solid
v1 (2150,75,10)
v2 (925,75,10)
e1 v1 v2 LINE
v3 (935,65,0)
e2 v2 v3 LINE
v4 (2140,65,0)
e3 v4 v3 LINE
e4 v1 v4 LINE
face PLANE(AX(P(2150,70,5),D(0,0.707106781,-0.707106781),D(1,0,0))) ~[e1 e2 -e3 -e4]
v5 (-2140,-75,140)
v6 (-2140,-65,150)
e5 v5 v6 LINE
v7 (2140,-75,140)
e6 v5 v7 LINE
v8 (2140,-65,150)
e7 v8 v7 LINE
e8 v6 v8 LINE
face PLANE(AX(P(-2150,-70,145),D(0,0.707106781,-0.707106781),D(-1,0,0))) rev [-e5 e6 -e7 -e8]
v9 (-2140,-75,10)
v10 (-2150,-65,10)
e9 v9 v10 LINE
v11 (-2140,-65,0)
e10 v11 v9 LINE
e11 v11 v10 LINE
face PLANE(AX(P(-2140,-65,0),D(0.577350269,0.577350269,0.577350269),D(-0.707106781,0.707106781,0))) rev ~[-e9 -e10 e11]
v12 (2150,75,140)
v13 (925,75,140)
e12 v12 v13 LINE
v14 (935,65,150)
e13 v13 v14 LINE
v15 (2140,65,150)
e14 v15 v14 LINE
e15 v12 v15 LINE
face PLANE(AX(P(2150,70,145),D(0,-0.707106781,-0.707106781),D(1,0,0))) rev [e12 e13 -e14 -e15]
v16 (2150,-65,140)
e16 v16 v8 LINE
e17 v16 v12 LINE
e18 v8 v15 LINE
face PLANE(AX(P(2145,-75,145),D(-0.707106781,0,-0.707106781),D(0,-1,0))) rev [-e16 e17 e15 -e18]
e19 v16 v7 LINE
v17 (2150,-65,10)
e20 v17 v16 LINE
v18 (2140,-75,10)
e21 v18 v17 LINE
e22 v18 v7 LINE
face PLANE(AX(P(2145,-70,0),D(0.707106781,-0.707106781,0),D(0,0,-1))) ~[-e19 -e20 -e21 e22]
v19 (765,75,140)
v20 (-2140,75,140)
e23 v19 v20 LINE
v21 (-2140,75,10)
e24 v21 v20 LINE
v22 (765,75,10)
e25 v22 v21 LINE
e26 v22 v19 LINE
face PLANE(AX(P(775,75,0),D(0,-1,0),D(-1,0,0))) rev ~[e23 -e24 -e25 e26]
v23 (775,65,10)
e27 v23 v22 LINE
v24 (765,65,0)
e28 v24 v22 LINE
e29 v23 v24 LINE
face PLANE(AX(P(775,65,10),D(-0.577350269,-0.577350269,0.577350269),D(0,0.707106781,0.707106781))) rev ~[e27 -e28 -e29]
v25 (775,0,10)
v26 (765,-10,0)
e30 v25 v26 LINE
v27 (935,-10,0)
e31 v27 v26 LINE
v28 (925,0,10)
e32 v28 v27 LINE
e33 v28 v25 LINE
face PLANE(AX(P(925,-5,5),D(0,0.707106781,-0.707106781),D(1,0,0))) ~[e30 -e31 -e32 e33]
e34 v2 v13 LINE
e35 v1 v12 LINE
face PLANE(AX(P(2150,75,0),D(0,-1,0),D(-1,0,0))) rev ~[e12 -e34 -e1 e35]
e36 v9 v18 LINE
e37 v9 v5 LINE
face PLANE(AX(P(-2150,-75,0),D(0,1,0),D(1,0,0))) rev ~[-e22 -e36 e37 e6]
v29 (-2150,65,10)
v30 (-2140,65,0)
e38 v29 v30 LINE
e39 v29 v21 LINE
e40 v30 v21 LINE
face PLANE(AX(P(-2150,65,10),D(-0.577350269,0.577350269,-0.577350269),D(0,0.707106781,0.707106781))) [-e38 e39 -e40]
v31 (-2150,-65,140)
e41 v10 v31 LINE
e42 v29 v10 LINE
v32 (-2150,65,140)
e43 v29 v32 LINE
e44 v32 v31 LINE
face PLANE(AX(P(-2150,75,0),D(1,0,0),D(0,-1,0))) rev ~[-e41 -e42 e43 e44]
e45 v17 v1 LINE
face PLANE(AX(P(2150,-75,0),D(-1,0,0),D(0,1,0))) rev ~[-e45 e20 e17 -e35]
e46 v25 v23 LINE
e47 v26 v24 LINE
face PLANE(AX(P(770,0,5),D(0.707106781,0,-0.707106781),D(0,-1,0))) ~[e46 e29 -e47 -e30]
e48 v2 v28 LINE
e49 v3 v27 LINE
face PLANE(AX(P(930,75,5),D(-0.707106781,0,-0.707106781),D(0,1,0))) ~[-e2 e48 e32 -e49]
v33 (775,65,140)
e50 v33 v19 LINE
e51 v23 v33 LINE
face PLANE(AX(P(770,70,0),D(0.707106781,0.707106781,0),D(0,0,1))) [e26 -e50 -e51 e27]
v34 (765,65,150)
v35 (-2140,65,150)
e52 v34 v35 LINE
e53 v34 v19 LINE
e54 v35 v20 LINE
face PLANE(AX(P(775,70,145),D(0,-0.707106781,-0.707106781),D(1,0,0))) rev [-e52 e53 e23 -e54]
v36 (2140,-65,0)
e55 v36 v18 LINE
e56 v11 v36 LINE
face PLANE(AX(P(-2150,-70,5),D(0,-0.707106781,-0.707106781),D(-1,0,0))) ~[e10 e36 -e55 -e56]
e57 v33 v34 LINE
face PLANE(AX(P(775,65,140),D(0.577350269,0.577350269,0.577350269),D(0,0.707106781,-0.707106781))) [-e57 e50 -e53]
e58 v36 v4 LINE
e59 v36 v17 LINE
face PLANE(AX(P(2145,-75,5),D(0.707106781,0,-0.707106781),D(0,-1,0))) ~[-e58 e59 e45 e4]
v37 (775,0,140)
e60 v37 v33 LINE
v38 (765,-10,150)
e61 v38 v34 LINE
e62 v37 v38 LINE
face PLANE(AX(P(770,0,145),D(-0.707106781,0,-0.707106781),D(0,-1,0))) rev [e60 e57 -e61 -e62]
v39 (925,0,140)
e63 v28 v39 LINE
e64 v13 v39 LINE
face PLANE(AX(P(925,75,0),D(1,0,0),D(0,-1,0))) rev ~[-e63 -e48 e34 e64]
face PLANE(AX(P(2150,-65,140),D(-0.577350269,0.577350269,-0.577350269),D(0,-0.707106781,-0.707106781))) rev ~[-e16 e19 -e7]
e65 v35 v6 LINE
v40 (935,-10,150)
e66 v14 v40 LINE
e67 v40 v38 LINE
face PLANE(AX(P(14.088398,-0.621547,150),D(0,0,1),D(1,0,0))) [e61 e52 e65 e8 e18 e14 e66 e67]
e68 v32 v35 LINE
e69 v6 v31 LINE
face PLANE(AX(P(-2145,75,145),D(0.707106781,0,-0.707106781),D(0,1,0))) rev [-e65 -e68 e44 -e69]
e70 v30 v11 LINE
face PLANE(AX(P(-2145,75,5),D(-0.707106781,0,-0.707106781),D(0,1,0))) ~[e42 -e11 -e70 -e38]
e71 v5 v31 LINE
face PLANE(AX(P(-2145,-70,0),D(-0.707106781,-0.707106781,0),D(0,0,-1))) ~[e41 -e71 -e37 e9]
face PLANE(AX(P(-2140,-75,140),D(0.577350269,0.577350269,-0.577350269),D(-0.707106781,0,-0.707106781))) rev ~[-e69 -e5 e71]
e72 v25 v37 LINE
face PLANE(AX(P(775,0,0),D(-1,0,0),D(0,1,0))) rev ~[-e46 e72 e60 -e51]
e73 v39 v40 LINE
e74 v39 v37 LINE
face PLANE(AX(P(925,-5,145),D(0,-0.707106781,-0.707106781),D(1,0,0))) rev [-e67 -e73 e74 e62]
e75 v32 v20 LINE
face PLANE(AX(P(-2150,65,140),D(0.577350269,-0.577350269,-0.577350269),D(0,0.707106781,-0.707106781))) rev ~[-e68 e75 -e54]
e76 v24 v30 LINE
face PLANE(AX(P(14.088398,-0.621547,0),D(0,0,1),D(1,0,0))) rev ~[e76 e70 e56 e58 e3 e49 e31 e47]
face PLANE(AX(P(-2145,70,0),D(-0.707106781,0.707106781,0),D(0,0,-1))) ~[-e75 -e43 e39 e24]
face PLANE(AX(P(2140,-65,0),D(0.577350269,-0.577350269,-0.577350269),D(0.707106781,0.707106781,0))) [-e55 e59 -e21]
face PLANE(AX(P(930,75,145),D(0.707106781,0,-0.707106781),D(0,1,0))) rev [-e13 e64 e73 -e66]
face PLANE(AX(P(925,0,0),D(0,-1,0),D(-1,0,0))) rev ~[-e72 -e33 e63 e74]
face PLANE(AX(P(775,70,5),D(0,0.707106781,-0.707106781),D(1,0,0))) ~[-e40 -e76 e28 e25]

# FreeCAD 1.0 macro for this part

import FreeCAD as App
import Part
import Sketcher

V = App.Vector


def edges_at(feature, points):
    """Names of the edges that pass closest to the given points."""
    edges = feature.Shape.Edges
    near = lambda p: min(range(len(edges)), key=lambda i: edges[i].distToShape(Part.Vertex(*p))[0])
    return sorted({f"Edge{near(p) + 1}" for p in points})

doc = App.newDocument("Part")
body = doc.addObject("PartDesign::Body", "Body")

# Sketch on XY plane
sketch1 = body.newObject("Sketcher::SketchObject", "Sketch")
sketch1.AttachmentSupport = (doc.getObject("XY_Plane"), [""])
sketch1.MapMode = "FlatFace"
sketch1.addGeometry(Part.LineSegment(V(775, 75, 0), V(-2150, 75, 0)), False)
sketch1.addGeometry(Part.LineSegment(V(-2150, 75, 0), V(-2150, -75, 0)), False)
sketch1.addGeometry(Part.LineSegment(V(-2150, -75, 0), V(2150, -75, 0)), False)
sketch1.addGeometry(Part.LineSegment(V(2150, -75, 0), V(2150, 75, 0)), False)
sketch1.addGeometry(Part.LineSegment(V(2150, 75, 0), V(925, 75, 0)), False)
sketch1.addGeometry(Part.LineSegment(V(925, 75, 0), V(925, 0, 0)), False)
sketch1.addGeometry(Part.LineSegment(V(925, 0, 0), V(775, 0, 0)), False)
sketch1.addGeometry(Part.LineSegment(V(775, 0, 0), V(775, 75, 0)), False)
sketch1.addConstraint(Sketcher.Constraint("Coincident", 0, 2, 1, 1))
sketch1.addConstraint(Sketcher.Constraint("Coincident", 1, 2, 2, 1))
sketch1.addConstraint(Sketcher.Constraint("Coincident", 2, 2, 3, 1))
sketch1.addConstraint(Sketcher.Constraint("Coincident", 3, 2, 4, 1))
sketch1.addConstraint(Sketcher.Constraint("Coincident", 4, 2, 5, 1))
sketch1.addConstraint(Sketcher.Constraint("Coincident", 5, 2, 6, 1))
sketch1.addConstraint(Sketcher.Constraint("Coincident", 6, 2, 7, 1))
sketch1.addConstraint(Sketcher.Constraint("Coincident", 7, 2, 0, 1))
sketch1.addConstraint(Sketcher.Constraint("Horizontal", 0))
sketch1.addConstraint(Sketcher.Constraint("Vertical", 1))
sketch1.addConstraint(Sketcher.Constraint("Horizontal", 2))
sketch1.addConstraint(Sketcher.Constraint("Vertical", 3))
sketch1.addConstraint(Sketcher.Constraint("Horizontal", 4))
sketch1.addConstraint(Sketcher.Constraint("Vertical", 5))
sketch1.addConstraint(Sketcher.Constraint("Horizontal", 6))
sketch1.addConstraint(Sketcher.Constraint("Vertical", 7))
sketch1.addConstraint(Sketcher.Constraint("Symmetric", 0, 2, 2, 2, -1, 1))
sketch1.addConstraint(Sketcher.Constraint("PointOnObject", 5, 2, -1))
sketch1.addConstraint(Sketcher.Constraint("Horizontal", 0, 2, 3, 2))
sketch1.addConstraint(Sketcher.Constraint("Equal", 6, 1))
sketch1.addConstraint(Sketcher.Constraint("DistanceX", 0, 2, 0, 1, 2925.0))
sketch1.addConstraint(Sketcher.Constraint("DistanceX", 2, 1, 2, 2, 4300.0))
sketch1.addConstraint(Sketcher.Constraint("DistanceX", 4, 2, 4, 1, 1225.0))
pad1 = body.newObject("PartDesign::Pad", "Pad")
pad1.Profile = sketch1
pad1.Length = 150
doc.recompute()

chamfer = body.newObject("PartDesign::Chamfer", "Chamfer")
chamfer.Base = (pad1, edges_at(pad1, [
    (-687.5, 75, 150),
    (-2150, 0, 150),
    (0, -75, 150),
    (2150, 0, 150),
    (1537.5, 75, 150),
    (925, 37.5, 150),
    (850, 0, 150),
    (775, 37.5, 150),
    (-2150, -75, 75),
    (2150, -75, 75),
    (0, -75, 0),
    (-687.5, 75, 0),
    (-2150, 0, 0),
    (2150, 0, 0),
    (1537.5, 75, 0),
    (925, 37.5, 0),
    (850, 0, 0),
    (775, 37.5, 0),
    (775, 75, 75),
    (-2150, 75, 75),
]))
chamfer.Size = 10

doc.recompute()
